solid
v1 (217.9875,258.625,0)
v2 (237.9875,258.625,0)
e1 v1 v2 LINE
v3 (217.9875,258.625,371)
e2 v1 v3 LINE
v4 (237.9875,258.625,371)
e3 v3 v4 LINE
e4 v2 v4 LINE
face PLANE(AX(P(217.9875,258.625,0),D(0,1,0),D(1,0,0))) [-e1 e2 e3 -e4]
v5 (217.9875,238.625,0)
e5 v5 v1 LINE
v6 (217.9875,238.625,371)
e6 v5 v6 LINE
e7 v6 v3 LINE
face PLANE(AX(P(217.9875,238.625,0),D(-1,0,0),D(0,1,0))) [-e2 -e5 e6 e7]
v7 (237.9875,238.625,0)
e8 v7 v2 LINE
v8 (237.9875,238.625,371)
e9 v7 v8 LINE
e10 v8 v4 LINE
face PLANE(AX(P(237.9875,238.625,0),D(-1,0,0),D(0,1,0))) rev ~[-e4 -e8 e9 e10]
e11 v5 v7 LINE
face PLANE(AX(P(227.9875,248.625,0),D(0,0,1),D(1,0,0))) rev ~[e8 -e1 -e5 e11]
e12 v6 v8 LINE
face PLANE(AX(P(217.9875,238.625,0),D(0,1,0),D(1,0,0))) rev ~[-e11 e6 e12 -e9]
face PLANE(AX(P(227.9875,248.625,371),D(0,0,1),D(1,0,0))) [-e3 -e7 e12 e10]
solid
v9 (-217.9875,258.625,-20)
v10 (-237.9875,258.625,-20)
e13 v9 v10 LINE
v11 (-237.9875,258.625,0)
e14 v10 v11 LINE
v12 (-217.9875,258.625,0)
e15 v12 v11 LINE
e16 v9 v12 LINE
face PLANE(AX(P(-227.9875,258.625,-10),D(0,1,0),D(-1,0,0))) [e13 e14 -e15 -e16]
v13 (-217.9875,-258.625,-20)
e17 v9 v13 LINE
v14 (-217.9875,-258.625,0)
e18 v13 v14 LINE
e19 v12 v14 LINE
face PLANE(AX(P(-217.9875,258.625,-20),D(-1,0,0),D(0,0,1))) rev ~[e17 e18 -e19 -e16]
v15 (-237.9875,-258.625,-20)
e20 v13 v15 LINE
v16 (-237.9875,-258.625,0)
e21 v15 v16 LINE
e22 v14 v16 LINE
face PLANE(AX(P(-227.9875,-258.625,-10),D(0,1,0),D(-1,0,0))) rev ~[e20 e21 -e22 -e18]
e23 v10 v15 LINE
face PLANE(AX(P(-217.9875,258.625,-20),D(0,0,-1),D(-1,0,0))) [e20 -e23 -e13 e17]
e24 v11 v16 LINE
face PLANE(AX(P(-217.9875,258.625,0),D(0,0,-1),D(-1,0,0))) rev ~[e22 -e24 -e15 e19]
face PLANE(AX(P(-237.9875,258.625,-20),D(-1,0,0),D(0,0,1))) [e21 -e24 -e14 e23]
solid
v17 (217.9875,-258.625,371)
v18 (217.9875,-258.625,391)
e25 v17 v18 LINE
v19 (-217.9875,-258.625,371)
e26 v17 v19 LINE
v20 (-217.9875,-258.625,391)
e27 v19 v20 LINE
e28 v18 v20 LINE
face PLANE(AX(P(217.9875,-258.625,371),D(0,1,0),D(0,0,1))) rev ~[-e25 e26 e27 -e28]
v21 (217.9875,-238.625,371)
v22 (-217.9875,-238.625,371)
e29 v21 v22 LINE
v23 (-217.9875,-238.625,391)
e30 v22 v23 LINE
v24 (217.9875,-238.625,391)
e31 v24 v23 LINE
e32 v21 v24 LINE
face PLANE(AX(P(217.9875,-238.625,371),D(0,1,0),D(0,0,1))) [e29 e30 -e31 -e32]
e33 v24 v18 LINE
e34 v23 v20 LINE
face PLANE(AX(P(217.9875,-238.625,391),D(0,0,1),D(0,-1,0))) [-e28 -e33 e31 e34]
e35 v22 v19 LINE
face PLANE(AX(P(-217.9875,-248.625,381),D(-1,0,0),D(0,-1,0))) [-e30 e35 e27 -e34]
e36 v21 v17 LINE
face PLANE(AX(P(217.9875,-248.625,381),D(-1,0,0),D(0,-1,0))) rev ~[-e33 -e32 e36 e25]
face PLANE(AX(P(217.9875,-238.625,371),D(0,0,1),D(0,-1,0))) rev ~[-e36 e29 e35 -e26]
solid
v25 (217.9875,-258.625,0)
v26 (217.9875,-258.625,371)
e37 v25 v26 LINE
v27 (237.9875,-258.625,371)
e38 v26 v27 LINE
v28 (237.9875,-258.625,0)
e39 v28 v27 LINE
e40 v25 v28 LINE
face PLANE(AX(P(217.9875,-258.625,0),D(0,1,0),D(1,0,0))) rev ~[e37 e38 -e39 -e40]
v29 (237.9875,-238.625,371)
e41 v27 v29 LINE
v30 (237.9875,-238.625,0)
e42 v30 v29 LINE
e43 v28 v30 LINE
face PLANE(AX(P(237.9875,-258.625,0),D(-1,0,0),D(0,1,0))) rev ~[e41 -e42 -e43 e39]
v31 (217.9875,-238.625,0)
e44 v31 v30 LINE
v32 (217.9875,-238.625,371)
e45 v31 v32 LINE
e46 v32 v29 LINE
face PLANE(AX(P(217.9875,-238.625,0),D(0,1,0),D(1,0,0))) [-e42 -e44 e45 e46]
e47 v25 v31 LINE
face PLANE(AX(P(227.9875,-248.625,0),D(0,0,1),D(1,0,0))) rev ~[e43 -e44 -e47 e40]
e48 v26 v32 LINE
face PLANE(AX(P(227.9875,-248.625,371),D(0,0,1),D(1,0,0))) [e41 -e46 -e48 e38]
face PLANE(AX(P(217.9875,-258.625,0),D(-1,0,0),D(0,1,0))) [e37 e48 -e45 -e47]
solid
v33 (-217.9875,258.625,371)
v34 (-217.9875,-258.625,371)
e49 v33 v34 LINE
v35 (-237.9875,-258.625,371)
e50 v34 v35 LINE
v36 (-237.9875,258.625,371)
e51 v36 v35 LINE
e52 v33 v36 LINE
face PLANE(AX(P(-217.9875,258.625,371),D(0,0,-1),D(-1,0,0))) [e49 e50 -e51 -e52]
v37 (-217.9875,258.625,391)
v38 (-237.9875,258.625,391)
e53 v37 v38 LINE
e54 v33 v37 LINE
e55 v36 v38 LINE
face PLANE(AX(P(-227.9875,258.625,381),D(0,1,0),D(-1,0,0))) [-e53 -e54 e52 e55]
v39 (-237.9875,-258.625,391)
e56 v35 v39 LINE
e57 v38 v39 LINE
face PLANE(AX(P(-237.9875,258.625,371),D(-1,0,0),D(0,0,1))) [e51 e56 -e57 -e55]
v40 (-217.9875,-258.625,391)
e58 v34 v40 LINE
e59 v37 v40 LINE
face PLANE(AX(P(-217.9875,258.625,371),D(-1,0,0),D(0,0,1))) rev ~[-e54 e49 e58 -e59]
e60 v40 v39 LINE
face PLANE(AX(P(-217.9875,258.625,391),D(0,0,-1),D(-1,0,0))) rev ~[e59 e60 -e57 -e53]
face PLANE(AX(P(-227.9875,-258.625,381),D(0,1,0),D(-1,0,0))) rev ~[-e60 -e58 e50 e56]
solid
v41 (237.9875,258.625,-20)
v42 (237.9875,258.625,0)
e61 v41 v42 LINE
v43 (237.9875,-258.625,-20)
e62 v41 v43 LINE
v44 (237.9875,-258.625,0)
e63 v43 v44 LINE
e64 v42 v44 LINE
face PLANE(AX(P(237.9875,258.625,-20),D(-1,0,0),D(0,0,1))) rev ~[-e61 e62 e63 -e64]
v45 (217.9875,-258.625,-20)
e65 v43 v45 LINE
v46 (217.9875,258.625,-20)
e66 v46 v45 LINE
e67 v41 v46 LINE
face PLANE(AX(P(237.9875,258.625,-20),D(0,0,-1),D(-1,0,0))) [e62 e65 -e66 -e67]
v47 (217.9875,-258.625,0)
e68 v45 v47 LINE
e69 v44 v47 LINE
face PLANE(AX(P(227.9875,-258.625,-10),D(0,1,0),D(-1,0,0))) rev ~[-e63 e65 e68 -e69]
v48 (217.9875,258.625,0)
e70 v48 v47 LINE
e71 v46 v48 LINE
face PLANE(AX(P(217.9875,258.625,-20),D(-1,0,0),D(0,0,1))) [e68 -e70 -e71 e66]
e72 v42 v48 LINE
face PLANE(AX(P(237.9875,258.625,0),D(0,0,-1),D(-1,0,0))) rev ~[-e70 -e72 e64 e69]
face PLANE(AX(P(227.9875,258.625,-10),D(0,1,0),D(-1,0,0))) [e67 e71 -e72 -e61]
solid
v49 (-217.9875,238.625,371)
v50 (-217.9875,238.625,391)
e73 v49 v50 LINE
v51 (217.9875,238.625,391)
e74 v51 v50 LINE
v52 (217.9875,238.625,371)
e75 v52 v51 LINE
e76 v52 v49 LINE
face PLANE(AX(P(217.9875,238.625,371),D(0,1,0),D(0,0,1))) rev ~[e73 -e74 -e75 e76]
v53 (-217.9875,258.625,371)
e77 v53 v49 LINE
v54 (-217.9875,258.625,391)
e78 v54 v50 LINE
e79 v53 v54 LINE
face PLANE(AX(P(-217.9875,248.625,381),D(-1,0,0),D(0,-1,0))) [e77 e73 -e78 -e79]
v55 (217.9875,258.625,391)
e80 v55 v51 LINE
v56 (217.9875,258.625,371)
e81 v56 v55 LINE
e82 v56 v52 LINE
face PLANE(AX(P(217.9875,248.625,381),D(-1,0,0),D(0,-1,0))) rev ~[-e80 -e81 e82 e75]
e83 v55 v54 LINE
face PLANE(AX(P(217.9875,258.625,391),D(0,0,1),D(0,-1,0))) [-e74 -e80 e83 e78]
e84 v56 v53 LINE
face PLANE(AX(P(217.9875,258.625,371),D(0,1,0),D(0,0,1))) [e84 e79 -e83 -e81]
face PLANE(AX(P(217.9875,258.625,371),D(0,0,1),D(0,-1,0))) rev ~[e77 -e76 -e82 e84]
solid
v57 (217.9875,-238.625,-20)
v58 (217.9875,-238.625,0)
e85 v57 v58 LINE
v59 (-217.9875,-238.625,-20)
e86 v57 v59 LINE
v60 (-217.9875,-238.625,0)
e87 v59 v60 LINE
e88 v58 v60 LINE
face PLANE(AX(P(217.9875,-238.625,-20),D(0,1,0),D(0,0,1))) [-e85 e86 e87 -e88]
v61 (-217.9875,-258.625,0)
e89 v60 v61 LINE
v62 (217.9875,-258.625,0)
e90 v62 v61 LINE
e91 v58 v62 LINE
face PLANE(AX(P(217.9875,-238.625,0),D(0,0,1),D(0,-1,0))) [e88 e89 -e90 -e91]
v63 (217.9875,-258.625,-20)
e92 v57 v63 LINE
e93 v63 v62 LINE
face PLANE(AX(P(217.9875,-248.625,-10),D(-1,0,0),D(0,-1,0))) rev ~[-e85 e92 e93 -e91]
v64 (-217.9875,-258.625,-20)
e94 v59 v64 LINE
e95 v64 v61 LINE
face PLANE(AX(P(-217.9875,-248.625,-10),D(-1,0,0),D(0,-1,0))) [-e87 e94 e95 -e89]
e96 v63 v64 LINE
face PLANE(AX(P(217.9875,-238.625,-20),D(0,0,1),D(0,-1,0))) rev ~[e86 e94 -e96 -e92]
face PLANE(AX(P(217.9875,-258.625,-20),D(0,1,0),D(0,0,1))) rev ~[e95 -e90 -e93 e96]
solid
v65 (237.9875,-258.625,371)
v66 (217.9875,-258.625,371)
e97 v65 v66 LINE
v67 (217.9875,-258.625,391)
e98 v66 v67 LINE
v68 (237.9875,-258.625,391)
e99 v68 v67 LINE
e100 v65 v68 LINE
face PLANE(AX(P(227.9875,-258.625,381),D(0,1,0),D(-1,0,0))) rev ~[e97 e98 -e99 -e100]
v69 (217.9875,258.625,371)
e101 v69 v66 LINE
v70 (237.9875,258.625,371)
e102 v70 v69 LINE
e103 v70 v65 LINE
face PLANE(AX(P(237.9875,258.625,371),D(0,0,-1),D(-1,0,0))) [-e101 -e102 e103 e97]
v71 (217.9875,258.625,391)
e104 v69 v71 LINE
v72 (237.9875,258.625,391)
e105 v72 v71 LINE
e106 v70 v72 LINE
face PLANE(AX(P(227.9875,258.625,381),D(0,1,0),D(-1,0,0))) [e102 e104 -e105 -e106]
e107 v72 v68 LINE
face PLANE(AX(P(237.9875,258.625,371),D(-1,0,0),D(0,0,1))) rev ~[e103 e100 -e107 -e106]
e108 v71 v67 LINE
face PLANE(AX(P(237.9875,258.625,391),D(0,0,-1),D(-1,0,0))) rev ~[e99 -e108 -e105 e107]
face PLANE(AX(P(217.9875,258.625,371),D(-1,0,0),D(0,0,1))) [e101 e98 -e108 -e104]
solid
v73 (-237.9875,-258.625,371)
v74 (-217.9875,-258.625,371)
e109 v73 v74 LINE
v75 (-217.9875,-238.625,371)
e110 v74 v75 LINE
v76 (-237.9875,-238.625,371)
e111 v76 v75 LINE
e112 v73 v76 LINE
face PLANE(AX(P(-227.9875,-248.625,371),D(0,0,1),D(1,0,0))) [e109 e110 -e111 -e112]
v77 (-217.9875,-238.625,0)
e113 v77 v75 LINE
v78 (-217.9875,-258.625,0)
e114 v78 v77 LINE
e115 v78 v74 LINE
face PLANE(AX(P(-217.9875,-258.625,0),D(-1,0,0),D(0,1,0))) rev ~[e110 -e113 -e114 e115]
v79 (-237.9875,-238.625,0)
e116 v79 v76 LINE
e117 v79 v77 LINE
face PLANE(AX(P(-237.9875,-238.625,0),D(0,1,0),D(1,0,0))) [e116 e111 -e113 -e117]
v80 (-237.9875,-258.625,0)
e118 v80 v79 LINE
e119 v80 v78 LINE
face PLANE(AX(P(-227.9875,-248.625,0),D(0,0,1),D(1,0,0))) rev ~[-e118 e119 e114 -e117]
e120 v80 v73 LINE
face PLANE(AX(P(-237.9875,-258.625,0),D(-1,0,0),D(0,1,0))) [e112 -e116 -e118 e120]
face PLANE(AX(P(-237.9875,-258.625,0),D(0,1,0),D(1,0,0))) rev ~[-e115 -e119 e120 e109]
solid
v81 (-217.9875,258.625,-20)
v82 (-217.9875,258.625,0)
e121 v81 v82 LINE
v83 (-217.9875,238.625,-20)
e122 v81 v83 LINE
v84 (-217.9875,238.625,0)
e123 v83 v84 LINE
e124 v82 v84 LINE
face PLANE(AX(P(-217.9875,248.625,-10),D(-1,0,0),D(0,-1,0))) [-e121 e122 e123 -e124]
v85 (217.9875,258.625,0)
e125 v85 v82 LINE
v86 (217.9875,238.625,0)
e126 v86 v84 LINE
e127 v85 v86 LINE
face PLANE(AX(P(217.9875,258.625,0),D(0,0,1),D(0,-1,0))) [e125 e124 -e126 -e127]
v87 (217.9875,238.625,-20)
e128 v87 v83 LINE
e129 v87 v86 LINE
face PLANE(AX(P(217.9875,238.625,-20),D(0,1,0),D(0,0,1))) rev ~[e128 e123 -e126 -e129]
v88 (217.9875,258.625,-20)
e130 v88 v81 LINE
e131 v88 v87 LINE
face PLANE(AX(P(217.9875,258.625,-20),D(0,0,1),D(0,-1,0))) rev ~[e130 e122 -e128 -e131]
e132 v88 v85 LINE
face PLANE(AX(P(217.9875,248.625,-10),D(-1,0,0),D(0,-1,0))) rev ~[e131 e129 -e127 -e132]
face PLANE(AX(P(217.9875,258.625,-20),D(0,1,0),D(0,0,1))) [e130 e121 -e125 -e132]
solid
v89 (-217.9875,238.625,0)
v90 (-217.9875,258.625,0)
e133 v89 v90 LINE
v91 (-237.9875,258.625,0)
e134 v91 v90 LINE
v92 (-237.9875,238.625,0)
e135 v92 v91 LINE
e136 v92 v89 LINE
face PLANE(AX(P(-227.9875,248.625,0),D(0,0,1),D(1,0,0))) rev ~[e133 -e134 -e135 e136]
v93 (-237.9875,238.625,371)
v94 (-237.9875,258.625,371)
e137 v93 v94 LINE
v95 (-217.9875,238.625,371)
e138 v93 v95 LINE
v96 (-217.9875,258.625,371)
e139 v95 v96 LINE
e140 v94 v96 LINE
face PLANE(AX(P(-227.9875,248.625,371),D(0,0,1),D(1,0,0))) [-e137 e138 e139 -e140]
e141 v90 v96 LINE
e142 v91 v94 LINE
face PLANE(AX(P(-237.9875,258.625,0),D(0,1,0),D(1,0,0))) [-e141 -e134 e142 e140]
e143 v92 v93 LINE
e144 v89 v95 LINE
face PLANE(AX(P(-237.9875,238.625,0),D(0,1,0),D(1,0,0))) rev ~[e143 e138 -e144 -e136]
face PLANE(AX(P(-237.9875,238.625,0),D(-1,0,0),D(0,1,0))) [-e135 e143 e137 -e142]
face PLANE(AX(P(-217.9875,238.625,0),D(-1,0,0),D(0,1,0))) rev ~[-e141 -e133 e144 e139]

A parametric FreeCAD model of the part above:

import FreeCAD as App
import Part
import Sketcher

V = App.Vector
Q = App.Units.Quantity


def add_polygon(sketch, points):
    """Adds a closed chain of lines whose ends are joined by coincident constraints."""
    first, n = sketch.GeometryCount, len(points)
    for a, b in zip(points, points[1:] + points[:1]):
        sketch.addGeometry(Part.LineSegment(App.Vector(*a, 0), App.Vector(*b, 0)), False)
    for i in range(n):
        sketch.addConstraint(Sketcher.Constraint("Coincident", first + i, 2, first + (i + 1) % n, 1))

doc = App.newDocument("Part")
body = doc.addObject("PartDesign::Body", "Body")

sketch1 = body.newObject("Sketcher::SketchObject", "Sketch")
sketch1.AttachmentSupport = (doc.getObject("XY_Plane"), [""])
sketch1.MapMode = "FlatFace"
add_polygon(sketch1, [(218, 259), (218, 239), (238, 239), (238, 259)])
sketch1.addConstraint([
    Sketcher.Constraint("Vertical", 0),
    Sketcher.Constraint("Horizontal", 1),
    Sketcher.Constraint("Vertical", 2),
    Sketcher.Constraint("Horizontal", 3),
    Sketcher.Constraint("Equal", 3, 0),
    Sketcher.Constraint("DistanceX", 1, 1, 1, 2, Q("20 mm")),
    Sketcher.Constraint("DistanceY", -1, 1, 0, 2, Q("238.625 mm")),
    Sketcher.Constraint("DistanceX", -1, 1, 0, 2, Q("217.9875 mm")),
])
pad1 = body.newObject("PartDesign::Pad", "Pad")
pad1.Profile = sketch1
pad1.Length = 371
body2 = doc.addObject("PartDesign::Body", "Body001")

sketch2 = body2.newObject("Sketcher::SketchObject", "Sketch001")
sketch2.AttachmentSupport = (doc.getObject("XY_Plane001"), [""])
sketch2.MapMode = "FlatFace"
add_polygon(sketch2, [(-238, 259), (-238, 239), (-218, 239), (-218, 259)])
sketch2.addConstraint([
    Sketcher.Constraint("Vertical", 0),
    Sketcher.Constraint("Horizontal", 1),
    Sketcher.Constraint("Vertical", 2),
    Sketcher.Constraint("Horizontal", 3),
    Sketcher.Constraint("Equal", 3, 0),
    Sketcher.Constraint("DistanceX", 1, 1, 1, 2, Q("20 mm")),
    Sketcher.Constraint("DistanceY", -1, 1, 0, 2, Q("238.625 mm")),
    Sketcher.Constraint("DistanceX", 0, 2, -1, 1, Q("237.9875 mm")),
])
pad2 = body2.newObject("PartDesign::Pad", "Pad001")
pad2.Profile = sketch2
pad2.Length = 371
body3 = doc.addObject("PartDesign::Body", "Body002")

sketch3 = body3.newObject("Sketcher::SketchObject", "Sketch002")
sketch3.AttachmentSupport = (doc.getObject("XY_Plane002"), [""])
sketch3.MapMode = "FlatFace"
add_polygon(sketch3, [(-238, -239), (-238, -259), (-218, -259), (-218, -239)])
sketch3.addConstraint([
    Sketcher.Constraint("Vertical", 0),
    Sketcher.Constraint("Horizontal", 1),
    Sketcher.Constraint("Vertical", 2),
    Sketcher.Constraint("Horizontal", 3),
    Sketcher.Constraint("Equal", 3, 0),
    Sketcher.Constraint("DistanceX", 1, 1, 1, 2, Q("20 mm")),
    Sketcher.Constraint("DistanceY", 0, 2, -1, 1, Q("258.625 mm")),
    Sketcher.Constraint("DistanceX", 0, 2, -1, 1, Q("237.9875 mm")),
])
pad3 = body3.newObject("PartDesign::Pad", "Pad002")
pad3.Profile = sketch3
pad3.Length = 371
body4 = doc.addObject("PartDesign::Body", "Body003")

sketch4 = body4.newObject("Sketcher::SketchObject", "Sketch003")
sketch4.AttachmentSupport = (doc.getObject("XY_Plane003"), [""])
sketch4.MapMode = "FlatFace"
add_polygon(sketch4, [(218, -239), (218, -259), (238, -259), (238, -239)])
sketch4.addConstraint([
    Sketcher.Constraint("Vertical", 0),
    Sketcher.Constraint("Horizontal", 1),
    Sketcher.Constraint("Vertical", 2),
    Sketcher.Constraint("Horizontal", 3),
    Sketcher.Constraint("Equal", 3, 0),
    Sketcher.Constraint("DistanceX", 1, 1, 1, 2, Q("20 mm")),
    Sketcher.Constraint("DistanceY", 0, 2, -1, 1, Q("258.625 mm")),
    Sketcher.Constraint("DistanceX", -1, 1, 0, 2, Q("217.9875 mm")),
])
pad4 = body4.newObject("PartDesign::Pad", "Pad003")
pad4.Profile = sketch4
pad4.Length = 371
body5 = doc.addObject("PartDesign::Body", "Body004")

sketch5 = body5.newObject("Sketcher::SketchObject", "Sketch004")
sketch5.AttachmentSupport = (doc.getObject("YZ_Plane004"), [""])
sketch5.MapMode = "FlatFace"
sketch5.AttachmentOffset = App.Placement(V(0, 0, 217.9875), App.Rotation())
add_polygon(sketch5, [(259, 391), (259, 371), (239, 371), (239, 391)])
sketch5.addConstraint([
    Sketcher.Constraint("Vertical", 0),
    Sketcher.Constraint("Horizontal", 1),
    Sketcher.Constraint("Vertical", 2),
    Sketcher.Constraint("Horizontal", 3),
    Sketcher.Constraint("Equal", 3, 0),
    Sketcher.Constraint("DistanceX", 1, 2, 1, 1, Q("20 mm")),
    Sketcher.Constraint("DistanceY", -1, 1, 0, 2, Q("371 mm")),
    Sketcher.Constraint("DistanceX", -1, 1, 0, 2, Q("258.625 mm")),
])
pad5 = body5.newObject("PartDesign::Pad", "Pad004")
pad5.Profile = sketch5
pad5.Length = 435.975
pad5.Reversed = True
body6 = doc.addObject("PartDesign::Body", "Body005")

sketch6 = body6.newObject("Sketcher::SketchObject", "Sketch005")
sketch6.AttachmentSupport = (doc.getObject("YZ_Plane005"), [""])
sketch6.MapMode = "FlatFace"
sketch6.AttachmentOffset = App.Placement(V(0, 0, 217.9875), App.Rotation())
add_polygon(sketch6, [(-239, 391), (-239, 371), (-259, 371), (-259, 391)])
sketch6.addConstraint([
    Sketcher.Constraint("Vertical", 0),
    Sketcher.Constraint("Horizontal", 1),
    Sketcher.Constraint("Vertical", 2),
    Sketcher.Constraint("Horizontal", 3),
    Sketcher.Constraint("Equal", 3, 0),
    Sketcher.Constraint("DistanceX", 1, 2, 1, 1, Q("20 mm")),
    Sketcher.Constraint("DistanceY", -1, 1, 0, 2, Q("371 mm")),
    Sketcher.Constraint("DistanceX", 0, 2, -1, 1, Q("238.625 mm")),
])
pad6 = body6.newObject("PartDesign::Pad", "Pad005")
pad6.Profile = sketch6
pad6.Length = 435.975
pad6.Reversed = True
body7 = doc.addObject("PartDesign::Body", "Body006")

sketch7 = body7.newObject("Sketcher::SketchObject", "Sketch006")
sketch7.AttachmentSupport = (doc.getObject("YZ_Plane006"), [""])
sketch7.MapMode = "FlatFace"
sketch7.AttachmentOffset = App.Placement(V(0, 0, 217.9875), App.Rotation())
add_polygon(sketch7, [(259, 0), (259, -20), (239, -20), (239, 0)])
sketch7.addConstraint([
    Sketcher.Constraint("Vertical", 0),
    Sketcher.Constraint("Horizontal", 1),
    Sketcher.Constraint("Vertical", 2),
    Sketcher.Constraint("Horizontal", 3),
    Sketcher.Constraint("PointOnObject", 2, 2, -1),
    Sketcher.Constraint("Equal", 3, 0),
    Sketcher.Constraint("DistanceX", 1, 2, 1, 1, Q("20 mm")),
    Sketcher.Constraint("DistanceX", -1, 1, 0, 2, Q("258.625 mm")),
])
pad7 = body7.newObject("PartDesign::Pad", "Pad006")
pad7.Profile = sketch7
pad7.Length = 435.975
pad7.Reversed = True
body8 = doc.addObject("PartDesign::Body", "Body007")

sketch8 = body8.newObject("Sketcher::SketchObject", "Sketch007")
sketch8.AttachmentSupport = (doc.getObject("YZ_Plane007"), [""])
sketch8.MapMode = "FlatFace"
sketch8.AttachmentOffset = App.Placement(V(0, 0, 217.9875), App.Rotation())
add_polygon(sketch8, [(-239, 0), (-239, -20), (-259, -20), (-259, 0)])
sketch8.addConstraint([
    Sketcher.Constraint("Vertical", 0),
    Sketcher.Constraint("Horizontal", 1),
    Sketcher.Constraint("Vertical", 2),
    Sketcher.Constraint("Horizontal", 3),
    Sketcher.Constraint("PointOnObject", 2, 2, -1),
    Sketcher.Constraint("Equal", 3, 0),
    Sketcher.Constraint("DistanceX", 1, 2, 1, 1, Q("20 mm")),
    Sketcher.Constraint("DistanceX", 0, 2, -1, 1, Q("238.625 mm")),
])
pad8 = body8.newObject("PartDesign::Pad", "Pad007")
pad8.Profile = sketch8
pad8.Length = 435.975
pad8.Reversed = True
body9 = doc.addObject("PartDesign::Body", "Body008")

sketch9 = body9.newObject("Sketcher::SketchObject", "Sketch008")
sketch9.AttachmentSupport = (doc.getObject("XZ_Plane008"), [""])
sketch9.MapMode = "FlatFace"
sketch9.AttachmentOffset = App.Placement(V(0, 0, -258.625), App.Rotation())
add_polygon(sketch9, [(238, 0), (238, -20), (218, -20), (218, 0)])
sketch9.addConstraint([
    Sketcher.Constraint("Vertical", 0),
    Sketcher.Constraint("Horizontal", 1),
    Sketcher.Constraint("Vertical", 2),
    Sketcher.Constraint("Horizontal", 3),
    Sketcher.Constraint("PointOnObject", 2, 2, -1),
    Sketcher.Constraint("Equal", 3, 0),
    Sketcher.Constraint("DistanceX", 1, 2, 1, 1, Q("20 mm")),
    Sketcher.Constraint("DistanceX", -1, 1, 0, 2, Q("237.9875 mm")),
])
pad9 = body9.newObject("PartDesign::Pad", "Pad008")
pad9.Profile = sketch9
pad9.Length = 517.25
body10 = doc.addObject("PartDesign::Body", "Body009")

sketch10 = body10.newObject("Sketcher::SketchObject", "Sketch009")
sketch10.AttachmentSupport = (doc.getObject("XZ_Plane009"), [""])
sketch10.MapMode = "FlatFace"
sketch10.AttachmentOffset = App.Placement(V(0, 0, -258.625), App.Rotation())
add_polygon(sketch10, [(-218, 0), (-218, -20), (-238, -20), (-238, 0)])
sketch10.addConstraint([
    Sketcher.Constraint("Vertical", 0),
    Sketcher.Constraint("Horizontal", 1),
    Sketcher.Constraint("Vertical", 2),
    Sketcher.Constraint("Horizontal", 3),
    Sketcher.Constraint("PointOnObject", 2, 2, -1),
    Sketcher.Constraint("Equal", 3, 0),
    Sketcher.Constraint("DistanceX", 1, 2, 1, 1, Q("20 mm")),
    Sketcher.Constraint("DistanceX", 0, 2, -1, 1, Q("217.9875 mm")),
])
pad10 = body10.newObject("PartDesign::Pad", "Pad009")
pad10.Profile = sketch10
pad10.Length = 517.25
body11 = doc.addObject("PartDesign::Body", "Body010")

sketch11 = body11.newObject("Sketcher::SketchObject", "Sketch010")
sketch11.AttachmentSupport = (doc.getObject("XZ_Plane010"), [""])
sketch11.MapMode = "FlatFace"
sketch11.AttachmentOffset = App.Placement(V(0, 0, -258.625), App.Rotation())
add_polygon(sketch11, [(-218, 391), (-218, 371), (-238, 371), (-238, 391)])
sketch11.addConstraint([
    Sketcher.Constraint("Vertical", 0),
    Sketcher.Constraint("Horizontal", 1),
    Sketcher.Constraint("Vertical", 2),
    Sketcher.Constraint("Horizontal", 3),
    Sketcher.Constraint("Equal", 3, 0),
    Sketcher.Constraint("DistanceX", 1, 2, 1, 1, Q("20 mm")),
    Sketcher.Constraint("DistanceY", -1, 1, 0, 2, Q("371 mm")),
    Sketcher.Constraint("DistanceX", 0, 2, -1, 1, Q("217.9875 mm")),
])
pad11 = body11.newObject("PartDesign::Pad", "Pad010")
pad11.Profile = sketch11
pad11.Length = 517.25
body12 = doc.addObject("PartDesign::Body", "Body011")

sketch12 = body12.newObject("Sketcher::SketchObject", "Sketch011")
sketch12.AttachmentSupport = (doc.getObject("XZ_Plane011"), [""])
sketch12.MapMode = "FlatFace"
sketch12.AttachmentOffset = App.Placement(V(0, 0, -258.625), App.Rotation())
add_polygon(sketch12, [(238, 391), (238, 371), (218, 371), (218, 391)])
sketch12.addConstraint([
    Sketcher.Constraint("Vertical", 0),
    Sketcher.Constraint("Horizontal", 1),
    Sketcher.Constraint("Vertical", 2),
    Sketcher.Constraint("Horizontal", 3),
    Sketcher.Constraint("Equal", 3, 0),
    Sketcher.Constraint("DistanceX", 1, 2, 1, 1, Q("20 mm")),
    Sketcher.Constraint("DistanceY", -1, 1, 0, 2, Q("371 mm")),
    Sketcher.Constraint("DistanceX", -1, 1, 0, 2, Q("237.9875 mm")),
])
pad12 = body12.newObject("PartDesign::Pad", "Pad011")
pad12.Profile = sketch12
pad12.Length = 517.25

doc.recompute()
